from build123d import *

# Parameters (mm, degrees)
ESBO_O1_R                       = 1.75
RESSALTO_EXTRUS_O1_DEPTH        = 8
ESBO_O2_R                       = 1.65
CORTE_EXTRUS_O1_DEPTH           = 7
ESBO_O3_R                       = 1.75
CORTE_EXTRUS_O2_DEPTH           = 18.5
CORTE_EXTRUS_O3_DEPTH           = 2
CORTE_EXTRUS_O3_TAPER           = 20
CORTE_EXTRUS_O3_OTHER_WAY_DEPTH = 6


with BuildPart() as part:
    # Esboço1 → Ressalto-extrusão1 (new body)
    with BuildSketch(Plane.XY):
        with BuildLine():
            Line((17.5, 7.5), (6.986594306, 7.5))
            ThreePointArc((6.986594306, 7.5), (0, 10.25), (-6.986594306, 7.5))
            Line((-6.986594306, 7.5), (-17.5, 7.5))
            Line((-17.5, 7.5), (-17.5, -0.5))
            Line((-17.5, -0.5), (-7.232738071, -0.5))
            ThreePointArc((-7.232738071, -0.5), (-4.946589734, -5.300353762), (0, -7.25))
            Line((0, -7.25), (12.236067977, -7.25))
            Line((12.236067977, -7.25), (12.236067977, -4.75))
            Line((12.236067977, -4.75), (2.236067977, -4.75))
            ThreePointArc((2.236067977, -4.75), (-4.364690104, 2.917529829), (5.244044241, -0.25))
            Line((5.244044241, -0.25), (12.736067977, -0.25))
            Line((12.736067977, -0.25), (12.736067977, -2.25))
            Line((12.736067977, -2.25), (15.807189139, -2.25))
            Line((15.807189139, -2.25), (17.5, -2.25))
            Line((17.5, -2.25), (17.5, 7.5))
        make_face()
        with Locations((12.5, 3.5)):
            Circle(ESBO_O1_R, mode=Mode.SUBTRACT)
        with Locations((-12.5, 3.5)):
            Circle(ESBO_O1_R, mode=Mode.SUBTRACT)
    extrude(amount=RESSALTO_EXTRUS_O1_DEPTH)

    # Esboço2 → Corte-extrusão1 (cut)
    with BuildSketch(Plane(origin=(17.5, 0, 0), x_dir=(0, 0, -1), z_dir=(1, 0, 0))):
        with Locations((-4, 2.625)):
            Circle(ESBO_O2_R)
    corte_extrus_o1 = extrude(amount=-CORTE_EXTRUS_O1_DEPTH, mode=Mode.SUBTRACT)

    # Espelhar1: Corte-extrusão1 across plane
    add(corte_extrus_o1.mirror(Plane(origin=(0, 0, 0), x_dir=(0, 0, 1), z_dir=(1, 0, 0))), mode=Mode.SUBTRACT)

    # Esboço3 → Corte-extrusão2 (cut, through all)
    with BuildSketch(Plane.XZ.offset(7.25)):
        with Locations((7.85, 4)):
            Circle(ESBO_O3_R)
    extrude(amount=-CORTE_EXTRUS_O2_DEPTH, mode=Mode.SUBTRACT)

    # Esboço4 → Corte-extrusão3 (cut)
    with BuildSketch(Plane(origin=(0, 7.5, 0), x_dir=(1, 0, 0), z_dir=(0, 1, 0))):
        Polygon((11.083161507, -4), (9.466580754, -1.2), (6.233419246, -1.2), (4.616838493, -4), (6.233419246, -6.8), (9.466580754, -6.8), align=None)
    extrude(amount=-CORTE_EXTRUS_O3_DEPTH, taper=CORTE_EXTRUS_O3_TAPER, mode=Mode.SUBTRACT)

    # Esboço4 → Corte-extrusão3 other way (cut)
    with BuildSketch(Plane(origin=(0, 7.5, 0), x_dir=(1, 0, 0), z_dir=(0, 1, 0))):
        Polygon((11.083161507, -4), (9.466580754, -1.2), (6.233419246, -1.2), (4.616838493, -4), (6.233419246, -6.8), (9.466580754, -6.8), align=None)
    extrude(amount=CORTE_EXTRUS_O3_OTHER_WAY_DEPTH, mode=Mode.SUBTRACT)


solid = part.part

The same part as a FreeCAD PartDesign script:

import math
import FreeCAD as App
import Part
import Sketcher
from FreeCAD import Vector
Q = App.Units.Quantity

doc = App.newDocument("Part")
body = doc.addObject("PartDesign::Body", "Body")

sketch1 = body.newObject("Sketcher::SketchObject", "Sketch")
sketch1.AttachmentSupport = (doc.getObject("XY_Plane"), [""])
sketch1.MapMode = "FlatFace"
sketch1.addGeometry(Part.LineSegment(Vector(17.5, 7.5, 0), Vector(7, 7.5, 0)), False)
sketch1.addGeometry(Part.ArcOfCircle(Part.Circle(Vector(0, 0, 0), Vector(0, 0, 1), 10.2), math.radians(47), math.radians(133)), False)
sketch1.addGeometry(Part.LineSegment(Vector(-7, 7.5, 0), Vector(-17.5, 7.5, 0)), False)
sketch1.addGeometry(Part.LineSegment(Vector(-17.5, 7.5, 0), Vector(-17.5, -0.5, 0)), False)
sketch1.addGeometry(Part.LineSegment(Vector(-17.5, -0.5, 0), Vector(-7.2, -0.5, 0)), False)
sketch1.addGeometry(Part.ArcOfCircle(Part.Circle(Vector(0, 0, 0), Vector(0, 0, 1), 7.3), math.radians(-176), math.radians(-90)), False)
sketch1.addGeometry(Part.LineSegment(Vector(0, -7.2, 0), Vector(12.2, -7.2, 0)), False)
sketch1.addGeometry(Part.LineSegment(Vector(12.2, -7.2, 0), Vector(12.2, -4.8, 0)), False)
sketch1.addGeometry(Part.LineSegment(Vector(12.2, -4.8, 0), Vector(2.2, -4.8, 0)), False)
sketch1.addGeometry(Part.ArcOfCircle(Part.Circle(Vector(0, 0, 0), Vector(0, 0, 1), 5.2), math.radians(-3), math.radians(295)), False)
sketch1.addGeometry(Part.LineSegment(Vector(5.2, -0.2, 0), Vector(12.7, -0.2, 0)), False)
sketch1.addGeometry(Part.LineSegment(Vector(12.7, -0.2, 0), Vector(12.7, -2.2, 0)), False)
sketch1.addGeometry(Part.LineSegment(Vector(12.7, -2.2, 0), Vector(17.5, -2.2, 0)), False)
sketch1.addGeometry(Part.LineSegment(Vector(17.5, -2.2, 0), Vector(17.5, 7.5, 0)), False)
sketch1.addGeometry(Part.Circle(Vector(-12.5, 3.5, 0), Vector(0, 0, 1), 1.8), False)
sketch1.addGeometry(Part.Circle(Vector(12.5, 3.5, 0), Vector(0, 0, 1), 1.8), False)
sketch1.addConstraint(Sketcher.Constraint("Coincident", 0, 2, 1, 1))
sketch1.addConstraint(Sketcher.Constraint("Coincident", 1, 2, 2, 1))
sketch1.addConstraint(Sketcher.Constraint("Coincident", 2, 2, 3, 1))
sketch1.addConstraint(Sketcher.Constraint("Coincident", 3, 2, 4, 1))
sketch1.addConstraint(Sketcher.Constraint("Coincident", 4, 2, 5, 1))
sketch1.addConstraint(Sketcher.Constraint("Tangent", 5, 2, 6, 1))
sketch1.addConstraint(Sketcher.Constraint("Coincident", 6, 2, 7, 1))
sketch1.addConstraint(Sketcher.Constraint("Coincident", 7, 2, 8, 1))
sketch1.addConstraint(Sketcher.Constraint("Coincident", 8, 2, 9, 2))
sketch1.addConstraint(Sketcher.Constraint("Coincident", 9, 1, 10, 1))
sketch1.addConstraint(Sketcher.Constraint("Coincident", 10, 2, 11, 1))
sketch1.addConstraint(Sketcher.Constraint("Coincident", 11, 2, 12, 1))
sketch1.addConstraint(Sketcher.Constraint("Coincident", 12, 2, 13, 1))
sketch1.addConstraint(Sketcher.Constraint("Coincident", 13, 2, 0, 1))
sketch1.addConstraint(Sketcher.Constraint("Horizontal", 0))
sketch1.addConstraint(Sketcher.Constraint("Horizontal", 2))
sketch1.addConstraint(Sketcher.Constraint("Vertical", 3))
sketch1.addConstraint(Sketcher.Constraint("Horizontal", 4))
sketch1.addConstraint(Sketcher.Constraint("Horizontal", 6))
sketch1.addConstraint(Sketcher.Constraint("Vertical", 7))
sketch1.addConstraint(Sketcher.Constraint("Horizontal", 8))
sketch1.addConstraint(Sketcher.Constraint("Horizontal", 10))
sketch1.addConstraint(Sketcher.Constraint("Vertical", 11))
sketch1.addConstraint(Sketcher.Constraint("Horizontal", 12))
sketch1.addConstraint(Sketcher.Constraint("Vertical", 13))
sketch1.addConstraint(Sketcher.Constraint("Coincident", 1, 3, -1, 1))
sketch1.addConstraint(Sketcher.Constraint("Coincident", 5, 3, -1, 1))
sketch1.addConstraint(Sketcher.Constraint("Coincident", 9, 3, -1, 1))
sketch1.addConstraint(Sketcher.Constraint("Equal", 14, 15))
sketch1.addConstraint(Sketcher.Constraint("Symmetric", 14, 3, 15, 3, -2))
sketch1.addConstraint(Sketcher.Constraint("Symmetric", 2, 2, 13, 2, -2))
sketch1.addConstraint(Sketcher.Constraint("Diameter", 14, 3.5))
sketch1.addConstraint(Sketcher.Constraint("DistanceX", 8, 2, 8, 1, 10.0))
sketch1.addConstraint(Sketcher.Constraint("DistanceY", 3, 2, 3, 1, 8.0))
sketch1.addConstraint(Sketcher.Constraint("DistanceY", 11, 2, 11, 1, 2.0))
sketch1.addConstraint(Sketcher.Constraint("Radius", 1, 10.25))
sketch1.addConstraint(Sketcher.Constraint("Radius", 5, 7.25))
sketch1.addConstraint(Sketcher.Constraint("Radius", 9, 5.25))
sketch1.addConstraint(Sketcher.Constraint("DistanceY", 7, 1, 7, 2, 2.5))
sketch1.addConstraint(Sketcher.Constraint("DistanceX", 14, 3, 15, 3, 25.0))
sketch1.addConstraint(Sketcher.Constraint("DistanceY", 15, 3, 0, 2, 4.0))
sketch1.addConstraint(Sketcher.Constraint("DistanceX", 2, 2, 14, 3, 5.0))
sketch1.addConstraint(Sketcher.Constraint("DistanceY", 6, 2, 10, 2, 7.0))
sketch1.addConstraint(Sketcher.Constraint("DistanceY", 13, 1, 13, 2, 9.75))
sketch1.addConstraint(Sketcher.Constraint("DistanceX", 7, 2, 10, 2, 0.5))
pad1 = body.newObject("PartDesign::Pad", "Pad")
pad1.Profile = sketch1
pad1.Length = 8

sketch2 = body.newObject("Sketcher::SketchObject", "Sketch001")
sketch2.AttachmentSupport = (doc.getObject("YZ_Plane"), [""])
sketch2.MapMode = "FlatFace"
sketch2.AttachmentOffset = App.Placement(Vector(0, 0, 17.5), App.Rotation())
sketch2.addGeometry(Part.Circle(Vector(2.6, 4, 0), Vector(0, 0, 1), 1.6), False)
sketch2.addConstraint(Sketcher.Constraint("Diameter", 0, 3.3))
sketch2.addConstraint(Sketcher.Constraint("DistanceY", -1, 1, 0, 3, 4.0))
sketch2.addConstraint(Sketcher.Constraint("DistanceX", -1, 1, 0, 3, 2.625))
pocket1 = body.newObject("PartDesign::Pocket", "Pocket")
pocket1.Profile = sketch2
pocket1.Length = 7
doc.recompute()

mirrored = body.newObject("PartDesign::Mirrored", "Mirrored")
mirrored.Originals = [pocket1]
mirrored.MirrorPlane = (doc.getObject("YZ_Plane"), [""])
body.Tip = mirrored

sketch3 = body.newObject("Sketcher::SketchObject", "Sketch002")
sketch3.AttachmentSupport = (doc.getObject("XZ_Plane"), [""])
sketch3.MapMode = "FlatFace"
sketch3.AttachmentOffset = App.Placement(Vector(0, 0, 7.25), App.Rotation())
sketch3.addGeometry(Part.Circle(Vector(7.8, 4, 0), Vector(0, 0, 1), 1.8), False)
sketch3.addConstraint(Sketcher.Constraint("Diameter", 0, 3.5))
sketch3.addConstraint(Sketcher.Constraint("DistanceY", -1, 1, 0, 3, 4.0))
sketch3.addConstraint(Sketcher.Constraint("DistanceX", -1, 1, 0, 3, 7.85))
pocket2 = body.newObject("PartDesign::Pocket", "Pocket001")
pocket2.Profile = sketch3
pocket2.Type = "ThroughAll"

sketch4 = body.newObject("Sketcher::SketchObject", "Sketch003")
sketch4.AttachmentSupport = (doc.getObject("XZ_Plane"), [""])
sketch4.MapMode = "FlatFace"
sketch4.AttachmentOffset = App.Placement(Vector(0, 0, -7.5), App.Rotation())
sketch4.addGeometry(Part.LineSegment(Vector(11.1, 4, 0), Vector(9.5, 1.2, 0)), False)
sketch4.addGeometry(Part.LineSegment(Vector(9.5, 1.2, 0), Vector(6.2, 1.2, 0)), False)
sketch4.addGeometry(Part.LineSegment(Vector(6.2, 1.2, 0), Vector(4.6, 4, 0)), False)
sketch4.addGeometry(Part.LineSegment(Vector(4.6, 4, 0), Vector(6.2, 6.8, 0)), False)
sketch4.addGeometry(Part.LineSegment(Vector(6.2, 6.8, 0), Vector(9.5, 6.8, 0)), False)
sketch4.addGeometry(Part.LineSegment(Vector(9.5, 6.8, 0), Vector(11.1, 4, 0)), False)
sketch4.addConstraint(Sketcher.Constraint("Coincident", 0, 2, 1, 1))
sketch4.addConstraint(Sketcher.Constraint("Coincident", 1, 2, 2, 1))
sketch4.addConstraint(Sketcher.Constraint("Coincident", 2, 2, 3, 1))
sketch4.addConstraint(Sketcher.Constraint("Coincident", 3, 2, 4, 1))
sketch4.addConstraint(Sketcher.Constraint("Coincident", 4, 2, 5, 1))
sketch4.addConstraint(Sketcher.Constraint("Coincident", 5, 2, 0, 1))
sketch4.addConstraint(Sketcher.Constraint("Horizontal", 1))
sketch4.addConstraint(Sketcher.Constraint("Horizontal", 4))
sketch4.addConstraint(Sketcher.Constraint("Parallel", 0, 3))
sketch4.addConstraint(Sketcher.Constraint("Parallel", 2, 5))
sketch4.addConstraint(Sketcher.Constraint("Horizontal", 2, 2, 5, 2))
sketch4.addConstraint(Sketcher.Constraint("Vertical", 1, 2, 3, 2))
sketch4.addConstraint(Sketcher.Constraint("Vertical", 0, 2, 4, 2))
sketch4.addConstraint(Sketcher.Constraint("Angle", 0, Q("-120 deg")))
sketch4.addConstraint(Sketcher.Constraint("DistanceY", -1, 1, 2, 2, 4.0))
sketch4.addConstraint(Sketcher.Constraint("DistanceY", -1, 1, 0, 2, 1.2))
sketch4.addConstraint(Sketcher.Constraint("DistanceX", 1, 2, 1, 1, 3.233162))
sketch4.addConstraint(Sketcher.Constraint("DistanceX", -1, 1, 0, 2, 9.466581))
pocket3 = body.newObject("PartDesign::Pocket", "Pocket002")
pocket3.Profile = sketch4
pocket3.Length = 2
pocket3.Reversed = True
pocket3.TaperAngle = -20

sketch5 = body.newObject("Sketcher::SketchObject", "Sketch004")
sketch5.AttachmentSupport = (doc.getObject("XZ_Plane"), [""])
sketch5.MapMode = "FlatFace"
sketch5.AttachmentOffset = App.Placement(Vector(0, 0, -7.5), App.Rotation())
sketch5.addGeometry(Part.LineSegment(Vector(11.1, 4, 0), Vector(9.5, 1.2, 0)), False)
sketch5.addGeometry(Part.LineSegment(Vector(9.5, 1.2, 0), Vector(6.2, 1.2, 0)), False)
sketch5.addGeometry(Part.LineSegment(Vector(6.2, 1.2, 0), Vector(4.6, 4, 0)), False)
sketch5.addGeometry(Part.LineSegment(Vector(4.6, 4, 0), Vector(6.2, 6.8, 0)), False)
sketch5.addGeometry(Part.LineSegment(Vector(6.2, 6.8, 0), Vector(9.5, 6.8, 0)), False)
sketch5.addGeometry(Part.LineSegment(Vector(9.5, 6.8, 0), Vector(11.1, 4, 0)), False)
sketch5.addConstraint(Sketcher.Constraint("Coincident", 0, 2, 1, 1))
sketch5.addConstraint(Sketcher.Constraint("Coincident", 1, 2, 2, 1))
sketch5.addConstraint(Sketcher.Constraint("Coincident", 2, 2, 3, 1))
sketch5.addConstraint(Sketcher.Constraint("Coincident", 3, 2, 4, 1))
sketch5.addConstraint(Sketcher.Constraint("Coincident", 4, 2, 5, 1))
sketch5.addConstraint(Sketcher.Constraint("Coincident", 5, 2, 0, 1))
sketch5.addConstraint(Sketcher.Constraint("Horizontal", 1))
sketch5.addConstraint(Sketcher.Constraint("Horizontal", 4))
sketch5.addConstraint(Sketcher.Constraint("Parallel", 0, 3))
sketch5.addConstraint(Sketcher.Constraint("Parallel", 2, 5))
sketch5.addConstraint(Sketcher.Constraint("Horizontal", 2, 2, 5, 2))
sketch5.addConstraint(Sketcher.Constraint("Vertical", 1, 2, 3, 2))
sketch5.addConstraint(Sketcher.Constraint("Vertical", 0, 2, 4, 2))
sketch5.addConstraint(Sketcher.Constraint("Angle", 0, Q("-120 deg")))
sketch5.addConstraint(Sketcher.Constraint("DistanceY", -1, 1, 2, 2, 4.0))
sketch5.addConstraint(Sketcher.Constraint("DistanceY", -1, 1, 0, 2, 1.2))
sketch5.addConstraint(Sketcher.Constraint("DistanceX", 1, 2, 1, 1, 3.233162))
sketch5.addConstraint(Sketcher.Constraint("DistanceX", -1, 1, 0, 2, 9.466581))
pocket4 = body.newObject("PartDesign::Pocket", "Pocket003")
pocket4.Profile = sketch5
pocket4.Length = 6

doc.recompute()
